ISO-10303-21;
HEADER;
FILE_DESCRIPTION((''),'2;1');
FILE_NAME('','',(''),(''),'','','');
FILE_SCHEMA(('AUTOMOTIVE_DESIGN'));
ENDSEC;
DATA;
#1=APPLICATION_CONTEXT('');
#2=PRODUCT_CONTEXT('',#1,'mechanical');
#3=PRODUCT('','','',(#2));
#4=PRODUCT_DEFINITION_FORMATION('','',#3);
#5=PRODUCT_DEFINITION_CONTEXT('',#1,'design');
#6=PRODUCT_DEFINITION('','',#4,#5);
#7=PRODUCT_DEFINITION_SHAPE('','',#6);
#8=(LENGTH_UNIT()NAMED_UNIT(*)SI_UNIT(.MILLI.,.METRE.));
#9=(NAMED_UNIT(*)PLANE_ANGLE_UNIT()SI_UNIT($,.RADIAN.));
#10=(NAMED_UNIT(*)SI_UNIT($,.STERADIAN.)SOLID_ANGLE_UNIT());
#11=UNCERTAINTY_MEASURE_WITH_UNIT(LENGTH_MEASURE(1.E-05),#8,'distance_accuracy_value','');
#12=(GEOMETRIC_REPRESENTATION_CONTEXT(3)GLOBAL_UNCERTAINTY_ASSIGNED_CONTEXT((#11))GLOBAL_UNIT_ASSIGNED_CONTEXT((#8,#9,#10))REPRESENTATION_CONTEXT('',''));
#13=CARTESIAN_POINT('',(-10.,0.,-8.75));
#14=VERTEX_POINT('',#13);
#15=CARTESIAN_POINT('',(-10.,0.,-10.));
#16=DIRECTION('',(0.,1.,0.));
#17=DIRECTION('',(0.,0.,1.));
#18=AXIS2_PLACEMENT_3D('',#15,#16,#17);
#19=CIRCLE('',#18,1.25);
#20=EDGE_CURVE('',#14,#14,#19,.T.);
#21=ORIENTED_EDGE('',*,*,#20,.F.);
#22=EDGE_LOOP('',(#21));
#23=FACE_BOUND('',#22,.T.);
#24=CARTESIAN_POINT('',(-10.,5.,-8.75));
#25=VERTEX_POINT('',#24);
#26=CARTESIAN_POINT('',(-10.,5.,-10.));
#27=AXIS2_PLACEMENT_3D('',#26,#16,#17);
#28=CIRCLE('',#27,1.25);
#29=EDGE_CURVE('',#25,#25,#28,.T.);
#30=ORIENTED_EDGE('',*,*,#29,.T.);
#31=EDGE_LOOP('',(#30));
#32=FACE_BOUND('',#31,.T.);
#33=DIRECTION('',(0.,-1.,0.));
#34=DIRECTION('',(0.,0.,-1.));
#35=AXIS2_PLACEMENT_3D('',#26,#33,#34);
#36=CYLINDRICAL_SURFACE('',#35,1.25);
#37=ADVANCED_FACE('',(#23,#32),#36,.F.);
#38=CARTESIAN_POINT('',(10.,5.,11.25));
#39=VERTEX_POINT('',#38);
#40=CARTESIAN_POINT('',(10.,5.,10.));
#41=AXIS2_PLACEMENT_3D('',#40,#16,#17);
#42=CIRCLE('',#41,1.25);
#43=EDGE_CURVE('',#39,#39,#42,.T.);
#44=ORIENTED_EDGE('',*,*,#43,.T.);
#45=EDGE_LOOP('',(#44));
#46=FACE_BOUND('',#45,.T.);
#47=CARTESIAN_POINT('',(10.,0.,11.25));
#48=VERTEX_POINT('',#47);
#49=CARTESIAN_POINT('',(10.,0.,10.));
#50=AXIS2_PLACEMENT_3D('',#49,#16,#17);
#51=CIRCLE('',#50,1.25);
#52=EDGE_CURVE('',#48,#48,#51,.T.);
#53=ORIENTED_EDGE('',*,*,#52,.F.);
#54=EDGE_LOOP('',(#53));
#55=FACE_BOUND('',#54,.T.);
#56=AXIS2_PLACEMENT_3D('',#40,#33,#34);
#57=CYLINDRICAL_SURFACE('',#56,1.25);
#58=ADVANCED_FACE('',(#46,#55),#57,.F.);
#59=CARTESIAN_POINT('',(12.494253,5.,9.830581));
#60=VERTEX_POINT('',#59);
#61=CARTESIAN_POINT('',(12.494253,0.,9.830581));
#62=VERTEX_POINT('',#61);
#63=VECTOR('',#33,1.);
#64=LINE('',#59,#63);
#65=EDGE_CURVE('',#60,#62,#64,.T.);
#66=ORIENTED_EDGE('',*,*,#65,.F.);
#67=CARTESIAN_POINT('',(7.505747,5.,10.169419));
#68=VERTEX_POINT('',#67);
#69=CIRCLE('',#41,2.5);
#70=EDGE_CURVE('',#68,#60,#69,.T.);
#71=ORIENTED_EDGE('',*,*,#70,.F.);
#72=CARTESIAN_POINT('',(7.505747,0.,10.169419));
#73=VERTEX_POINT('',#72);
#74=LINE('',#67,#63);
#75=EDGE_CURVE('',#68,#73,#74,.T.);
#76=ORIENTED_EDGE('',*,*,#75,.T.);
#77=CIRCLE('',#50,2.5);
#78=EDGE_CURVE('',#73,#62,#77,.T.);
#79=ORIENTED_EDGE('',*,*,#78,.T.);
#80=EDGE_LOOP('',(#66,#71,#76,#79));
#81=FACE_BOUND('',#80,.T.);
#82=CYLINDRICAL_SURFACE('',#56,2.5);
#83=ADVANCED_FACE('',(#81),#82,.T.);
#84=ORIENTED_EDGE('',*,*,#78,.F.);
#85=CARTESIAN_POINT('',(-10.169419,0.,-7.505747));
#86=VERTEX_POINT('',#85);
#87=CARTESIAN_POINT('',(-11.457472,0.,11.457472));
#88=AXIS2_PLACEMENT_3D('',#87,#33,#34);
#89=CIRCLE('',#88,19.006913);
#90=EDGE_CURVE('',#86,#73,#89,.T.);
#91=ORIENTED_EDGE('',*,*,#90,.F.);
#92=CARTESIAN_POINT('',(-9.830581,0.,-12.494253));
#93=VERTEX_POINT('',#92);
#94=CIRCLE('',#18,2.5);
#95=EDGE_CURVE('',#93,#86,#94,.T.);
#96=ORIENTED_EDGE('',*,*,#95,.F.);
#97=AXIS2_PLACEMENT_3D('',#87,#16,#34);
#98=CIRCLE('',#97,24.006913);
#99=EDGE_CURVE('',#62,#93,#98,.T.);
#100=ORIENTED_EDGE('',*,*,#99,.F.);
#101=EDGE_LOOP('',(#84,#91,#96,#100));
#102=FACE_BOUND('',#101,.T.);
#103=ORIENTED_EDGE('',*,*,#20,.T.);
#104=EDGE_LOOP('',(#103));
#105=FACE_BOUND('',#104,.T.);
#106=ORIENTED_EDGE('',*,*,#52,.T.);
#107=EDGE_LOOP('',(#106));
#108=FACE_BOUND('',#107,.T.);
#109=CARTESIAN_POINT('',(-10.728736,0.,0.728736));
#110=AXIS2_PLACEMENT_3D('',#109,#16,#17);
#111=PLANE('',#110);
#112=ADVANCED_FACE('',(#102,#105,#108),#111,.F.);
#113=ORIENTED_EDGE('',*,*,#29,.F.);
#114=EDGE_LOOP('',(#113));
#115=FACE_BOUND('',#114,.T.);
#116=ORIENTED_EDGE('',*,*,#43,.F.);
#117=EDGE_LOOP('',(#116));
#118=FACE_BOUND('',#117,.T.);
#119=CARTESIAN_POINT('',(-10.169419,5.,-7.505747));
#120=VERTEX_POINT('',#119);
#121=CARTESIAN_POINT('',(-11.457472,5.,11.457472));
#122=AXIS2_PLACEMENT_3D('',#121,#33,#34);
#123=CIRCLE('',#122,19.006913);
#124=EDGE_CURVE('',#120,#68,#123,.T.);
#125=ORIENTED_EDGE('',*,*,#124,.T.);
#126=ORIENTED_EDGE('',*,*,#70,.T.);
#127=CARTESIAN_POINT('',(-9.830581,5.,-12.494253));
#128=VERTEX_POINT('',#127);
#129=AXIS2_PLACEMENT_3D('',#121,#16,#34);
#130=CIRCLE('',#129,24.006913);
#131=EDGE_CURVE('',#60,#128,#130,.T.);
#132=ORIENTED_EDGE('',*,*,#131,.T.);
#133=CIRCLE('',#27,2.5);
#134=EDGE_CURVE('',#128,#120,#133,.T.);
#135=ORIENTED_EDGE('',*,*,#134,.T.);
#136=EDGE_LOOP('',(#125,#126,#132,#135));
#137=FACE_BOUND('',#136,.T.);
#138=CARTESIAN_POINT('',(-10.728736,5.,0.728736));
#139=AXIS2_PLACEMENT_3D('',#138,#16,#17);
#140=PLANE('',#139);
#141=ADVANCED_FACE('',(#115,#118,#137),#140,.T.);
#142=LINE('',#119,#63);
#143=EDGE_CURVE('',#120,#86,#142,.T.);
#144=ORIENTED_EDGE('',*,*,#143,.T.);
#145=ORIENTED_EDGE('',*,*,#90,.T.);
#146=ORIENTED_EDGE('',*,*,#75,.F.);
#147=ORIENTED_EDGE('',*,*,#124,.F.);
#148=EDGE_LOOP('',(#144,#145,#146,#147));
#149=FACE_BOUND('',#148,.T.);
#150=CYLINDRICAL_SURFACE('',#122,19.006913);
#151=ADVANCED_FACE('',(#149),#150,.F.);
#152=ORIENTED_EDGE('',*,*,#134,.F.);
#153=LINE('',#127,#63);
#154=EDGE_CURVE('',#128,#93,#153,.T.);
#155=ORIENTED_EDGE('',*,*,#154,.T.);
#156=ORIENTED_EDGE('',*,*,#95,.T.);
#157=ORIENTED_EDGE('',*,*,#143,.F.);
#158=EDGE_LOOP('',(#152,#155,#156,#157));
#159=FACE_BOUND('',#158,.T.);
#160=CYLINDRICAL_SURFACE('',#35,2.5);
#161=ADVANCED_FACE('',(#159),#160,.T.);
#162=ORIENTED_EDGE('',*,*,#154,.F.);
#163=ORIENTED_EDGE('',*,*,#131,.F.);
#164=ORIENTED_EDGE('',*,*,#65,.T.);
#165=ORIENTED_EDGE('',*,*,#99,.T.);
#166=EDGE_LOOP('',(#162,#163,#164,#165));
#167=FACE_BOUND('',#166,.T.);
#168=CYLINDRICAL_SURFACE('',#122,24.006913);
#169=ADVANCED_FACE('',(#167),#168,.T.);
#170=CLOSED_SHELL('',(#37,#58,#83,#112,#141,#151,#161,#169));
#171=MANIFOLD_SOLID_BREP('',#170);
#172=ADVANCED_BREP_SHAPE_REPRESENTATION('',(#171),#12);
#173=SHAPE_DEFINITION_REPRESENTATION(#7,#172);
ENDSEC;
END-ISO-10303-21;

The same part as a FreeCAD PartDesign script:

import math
import FreeCAD as App
import Part
import Sketcher
from FreeCAD import Vector
Q = App.Units.Quantity

doc = App.newDocument("Part")
body = doc.addObject("PartDesign::Body", "Body")

# Sketch on XZ plane
sketch1 = doc.addObject("Sketcher::SketchObject", "Sketch")
body.addObject(sketch1)
sketch1.AttachmentSupport = (doc.XZ_Plane, [""])
sketch1.MapMode = "FlatFace"
sketch1.addGeometry([
    Part.ArcOfCircle(Part.Circle(Vector(-11.457472, 11.457472, 0), Vector(0, 0, 1), 19.006913), math.radians(-86.114224), math.radians(-3.885776)),  # 0
    Part.ArcOfCircle(Part.Circle(Vector(10, 10, 0), Vector(0, 0, 1), 2.5), math.radians(-3.885776), math.radians(176.114224)),  # 1
    Part.ArcOfCircle(Part.Circle(Vector(-11.457472, 11.457472, 0), Vector(0, 0, 1), 24.006913), math.radians(-86.114224), math.radians(-3.885776)),  # 2
    Part.ArcOfCircle(Part.Circle(Vector(-10, -10, 0), Vector(0, 0, 1), 2.5), math.radians(93.885776), math.radians(273.885776)),  # 3
    Part.Circle(Vector(10, 10, 0), Vector(0, 0, 1), 1.25),  # 4
    Part.Circle(Vector(-10, -10, 0), Vector(0, 0, 1), 1.25),  # 5
], False)
sketch1.addConstraint([
    Sketcher.Constraint("Tangent", 0, 2, 1, 2),
    Sketcher.Constraint("Tangent", 1, 1, 2, 2),
    Sketcher.Constraint("Tangent", 2, 1, 3, 2),
    Sketcher.Constraint("Tangent", 3, 1, 0, 1),
    Sketcher.Constraint("Coincident", 2, 3, 0, 3),
    Sketcher.Constraint("Coincident", 4, 3, 1, 3),
    Sketcher.Constraint("Coincident", 5, 3, 3, 3),
    Sketcher.Constraint("Equal", 4, 5),
    Sketcher.Constraint("Symmetric", 1, 3, 3, 3, -1, 1),
    Sketcher.Constraint("Diameter", 4, Q("2.5 mm")),
    Sketcher.Constraint("Radius", 1, Q("2.5 mm")),
    Sketcher.Constraint("DistanceX", -1, 1, 1, 3, Q("10 mm")),
    Sketcher.Constraint("DistanceY", -1, 1, 1, 3, Q("10 mm")),
    Sketcher.Constraint("Radius", 0, Q("19.006913 mm")),
])
pad1 = doc.addObject("PartDesign::Pad", "Pad")
body.addObject(pad1)
pad1.Profile = sketch1
pad1.Length = 5
pad1.Reversed = True

doc.recompute()
